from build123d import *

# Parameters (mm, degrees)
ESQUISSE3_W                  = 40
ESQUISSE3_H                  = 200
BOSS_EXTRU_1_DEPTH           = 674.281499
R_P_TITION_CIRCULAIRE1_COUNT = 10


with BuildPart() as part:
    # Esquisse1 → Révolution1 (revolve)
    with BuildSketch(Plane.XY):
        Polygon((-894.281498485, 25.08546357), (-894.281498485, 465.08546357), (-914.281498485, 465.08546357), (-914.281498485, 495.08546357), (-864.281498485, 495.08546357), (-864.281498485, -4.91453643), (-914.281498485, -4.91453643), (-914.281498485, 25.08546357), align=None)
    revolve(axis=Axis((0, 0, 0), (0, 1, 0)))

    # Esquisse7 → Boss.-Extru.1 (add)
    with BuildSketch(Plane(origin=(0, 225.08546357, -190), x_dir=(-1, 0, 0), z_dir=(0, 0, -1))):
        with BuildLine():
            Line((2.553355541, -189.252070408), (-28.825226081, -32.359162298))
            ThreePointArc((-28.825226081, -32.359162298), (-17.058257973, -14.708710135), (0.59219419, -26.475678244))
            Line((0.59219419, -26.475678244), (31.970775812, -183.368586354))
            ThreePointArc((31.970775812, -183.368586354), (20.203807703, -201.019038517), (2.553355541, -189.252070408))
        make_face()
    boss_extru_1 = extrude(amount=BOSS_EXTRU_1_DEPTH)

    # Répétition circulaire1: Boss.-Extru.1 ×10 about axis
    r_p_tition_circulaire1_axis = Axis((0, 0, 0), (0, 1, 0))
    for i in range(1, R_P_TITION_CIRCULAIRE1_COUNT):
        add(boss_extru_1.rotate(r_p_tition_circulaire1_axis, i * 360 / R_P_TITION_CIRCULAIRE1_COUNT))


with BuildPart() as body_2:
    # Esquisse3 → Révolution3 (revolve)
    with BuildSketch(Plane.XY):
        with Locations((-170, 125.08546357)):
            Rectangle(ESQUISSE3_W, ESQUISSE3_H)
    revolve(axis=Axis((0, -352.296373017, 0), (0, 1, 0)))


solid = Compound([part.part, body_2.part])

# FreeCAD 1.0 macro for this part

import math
import FreeCAD as App
import Part
import Sketcher
from FreeCAD import Vector

doc = App.newDocument("Part")
body = doc.addObject("PartDesign::Body", "Body")

# Sketch on XY plane
sketch1 = body.newObject("Sketcher::SketchObject", "Sketch")
sketch1.AttachmentSupport = (doc.getObject("XY_Plane"), [""])
sketch1.MapMode = "FlatFace"
sketch1.addGeometry(Part.LineSegment(Vector(-894, 465, 0), Vector(-894, 25, 0)), False)
sketch1.addGeometry(Part.LineSegment(Vector(-894, 25, 0), Vector(-914, 25, 0)), False)
sketch1.addGeometry(Part.LineSegment(Vector(-914, 25, 0), Vector(-914, -5, 0)), False)
sketch1.addGeometry(Part.LineSegment(Vector(-914, -5, 0), Vector(-864, -5, 0)), False)
sketch1.addGeometry(Part.LineSegment(Vector(-864, -5, 0), Vector(-864, 495, 0)), False)
sketch1.addGeometry(Part.LineSegment(Vector(-864, 495, 0), Vector(-914, 495, 0)), False)
sketch1.addGeometry(Part.LineSegment(Vector(-914, 495, 0), Vector(-914, 465, 0)), False)
sketch1.addGeometry(Part.LineSegment(Vector(-914, 465, 0), Vector(-894, 465, 0)), False)
sketch1.addConstraint(Sketcher.Constraint("Coincident", 0, 2, 1, 1))
sketch1.addConstraint(Sketcher.Constraint("Coincident", 1, 2, 2, 1))
sketch1.addConstraint(Sketcher.Constraint("Coincident", 2, 2, 3, 1))
sketch1.addConstraint(Sketcher.Constraint("Coincident", 3, 2, 4, 1))
sketch1.addConstraint(Sketcher.Constraint("Coincident", 4, 2, 5, 1))
sketch1.addConstraint(Sketcher.Constraint("Coincident", 5, 2, 6, 1))
sketch1.addConstraint(Sketcher.Constraint("Coincident", 6, 2, 7, 1))
sketch1.addConstraint(Sketcher.Constraint("Coincident", 7, 2, 0, 1))
sketch1.addConstraint(Sketcher.Constraint("Vertical", 0))
sketch1.addConstraint(Sketcher.Constraint("Horizontal", 1))
sketch1.addConstraint(Sketcher.Constraint("Vertical", 2))
sketch1.addConstraint(Sketcher.Constraint("Horizontal", 3))
sketch1.addConstraint(Sketcher.Constraint("Vertical", 4))
sketch1.addConstraint(Sketcher.Constraint("Horizontal", 5))
sketch1.addConstraint(Sketcher.Constraint("Vertical", 6))
sketch1.addConstraint(Sketcher.Constraint("Horizontal", 7))
sketch1.addConstraint(Sketcher.Constraint("Vertical", 2, 2, 5, 2))
sketch1.addConstraint(Sketcher.Constraint("Equal", 2, 6))
sketch1.addConstraint(Sketcher.Constraint("DistanceX", 1, 2, 1, 1, 20.0))
sketch1.addConstraint(Sketcher.Constraint("DistanceX", 3, 1, 3, 2, 50.0))
sketch1.addConstraint(Sketcher.Constraint("DistanceY", 0, 2, 0, 1, 440.0))
sketch1.addConstraint(Sketcher.Constraint("DistanceY", 2, 2, 2, 1, 30.0))
sketch1.addConstraint(Sketcher.Constraint("DistanceX", 0, 2, -1, 1, 894.281498))
sketch1.addConstraint(Sketcher.Constraint("DistanceY", -1, 1, 0, 2, 25.085464))
revolution = body.newObject("PartDesign::Revolution", "Revolution")
revolution.Profile = sketch1
revolution.ReferenceAxis = (sketch1, ["V_Axis"])
revolution.Angle = 360

# Sketch on XY plane
sketch2 = body.newObject("Sketcher::SketchObject", "Sketch001")
sketch2.AttachmentSupport = (doc.getObject("XY_Plane"), [""])
sketch2.MapMode = "FlatFace"
sketch2.AttachmentOffset = App.Placement(Vector(0, 0, -190), App.Rotation())
sketch2.addGeometry(Part.LineSegment(Vector(29, 193, 0), Vector(-3, 36, 0)), False)
sketch2.addGeometry(Part.ArcOfCircle(Part.Circle(Vector(-17, 39, 0), Vector(0, 0, 1), 15), math.radians(169), math.radians(349)), False)
sketch2.addGeometry(Part.LineSegment(Vector(-32, 42, 0), Vector(-1, 199, 0)), False)
sketch2.addGeometry(Part.ArcOfCircle(Part.Circle(Vector(14, 196, 0), Vector(0, 0, 1), 15), math.radians(-11), math.radians(169)), False)
sketch2.addConstraint(Sketcher.Constraint("Tangent", 0, 2, 1, 2))
sketch2.addConstraint(Sketcher.Constraint("Tangent", 1, 1, 2, 1))
sketch2.addConstraint(Sketcher.Constraint("Tangent", 2, 2, 3, 2))
sketch2.addConstraint(Sketcher.Constraint("Tangent", 3, 1, 0, 1))
sketch2.addConstraint(Sketcher.Constraint("Equal", 1, 3))
sketch2.addConstraint(Sketcher.Constraint("Radius", 1, 15.0))
sketch2.addConstraint(Sketcher.Constraint("Distance", 0, 160.0))
sketch2.addConstraint(Sketcher.Constraint("DistanceX", 1, 1, 3, 1, 60.796002))
sketch2.addConstraint(Sketcher.Constraint("DistanceY", -1, 1, 3, 1, 192.726301))
sketch2.addConstraint(Sketcher.Constraint("DistanceX", 1, 3, -1, 1, 17.262066))
pad1 = body.newObject("PartDesign::Pad", "Pad")
pad1.Profile = sketch2
pad1.Length = 674.281499
pad1.Reversed = True
doc.recompute()

polarpattern = body.newObject("PartDesign::PolarPattern", "PolarPattern")
polarpattern.Originals = [pad1]
polarpattern.Axis = (doc.getObject("Y_Axis"), [""])
polarpattern.Angle = 360
polarpattern.Occurrences = 10
body.Tip = polarpattern
body2 = doc.addObject("PartDesign::Body", "Body001")

# Sketch on XY plane
sketch3 = body2.newObject("Sketcher::SketchObject", "Sketch002")
sketch3.AttachmentSupport = (doc.getObject("XY_Plane001"), [""])
sketch3.MapMode = "FlatFace"
sketch3.addGeometry(Part.LineSegment(Vector(-190, 225, 0), Vector(-190, 25, 0)), False)
sketch3.addGeometry(Part.LineSegment(Vector(-190, 25, 0), Vector(-150, 25, 0)), False)
sketch3.addGeometry(Part.LineSegment(Vector(-150, 25, 0), Vector(-150, 225, 0)), False)
sketch3.addGeometry(Part.LineSegment(Vector(-150, 225, 0), Vector(-190, 225, 0)), False)
sketch3.addConstraint(Sketcher.Constraint("Coincident", 0, 2, 1, 1))
sketch3.addConstraint(Sketcher.Constraint("Coincident", 1, 2, 2, 1))
sketch3.addConstraint(Sketcher.Constraint("Coincident", 2, 2, 3, 1))
sketch3.addConstraint(Sketcher.Constraint("Coincident", 3, 2, 0, 1))
sketch3.addConstraint(Sketcher.Constraint("Vertical", 0))
sketch3.addConstraint(Sketcher.Constraint("Horizontal", 1))
sketch3.addConstraint(Sketcher.Constraint("Vertical", 2))
sketch3.addConstraint(Sketcher.Constraint("Horizontal", 3))
sketch3.addConstraint(Sketcher.Constraint("DistanceX", 1, 1, 1, 2, 40.0))
sketch3.addConstraint(Sketcher.Constraint("DistanceY", 0, 2, 0, 1, 200.0))
sketch3.addConstraint(Sketcher.Constraint("DistanceX", 0, 2, -1, 1, 190.0))
sketch3.addConstraint(Sketcher.Constraint("DistanceY", -1, 1, 0, 2, 25.085464))
revolution2 = body2.newObject("PartDesign::Revolution", "Revolution001")
revolution2.Profile = sketch3
revolution2.ReferenceAxis = (sketch3, ["V_Axis"])
revolution2.Angle = 360

doc.recompute()
